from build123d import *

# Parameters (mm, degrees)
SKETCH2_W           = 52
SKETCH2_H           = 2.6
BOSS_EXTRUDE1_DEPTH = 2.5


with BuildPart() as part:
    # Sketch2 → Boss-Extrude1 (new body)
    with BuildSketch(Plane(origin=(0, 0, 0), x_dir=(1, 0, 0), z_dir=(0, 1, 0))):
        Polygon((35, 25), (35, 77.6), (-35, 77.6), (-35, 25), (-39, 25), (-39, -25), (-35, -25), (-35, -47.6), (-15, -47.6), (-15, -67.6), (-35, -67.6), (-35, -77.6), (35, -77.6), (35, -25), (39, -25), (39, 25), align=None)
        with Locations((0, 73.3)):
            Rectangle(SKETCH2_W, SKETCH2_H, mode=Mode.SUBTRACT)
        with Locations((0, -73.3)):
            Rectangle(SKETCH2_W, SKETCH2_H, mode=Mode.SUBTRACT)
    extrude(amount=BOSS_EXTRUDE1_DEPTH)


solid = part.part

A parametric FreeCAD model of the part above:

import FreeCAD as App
import Part
import Sketcher

V = App.Vector

doc = App.newDocument("Part")
body = doc.addObject("PartDesign::Body", "Body")

# Sketch on XZ plane
sketch1 = body.newObject("Sketcher::SketchObject", "Sketch")
sketch1.AttachmentSupport = (doc.getObject("XZ_Plane"), [""])
sketch1.MapMode = "FlatFace"
sketch1.addGeometry([
    Part.LineSegment(V(35, -25, 0), V(35, -77.6, 0)),  # 0
    Part.LineSegment(V(35, -77.6, 0), V(-35, -77.6, 0)),  # 1
    Part.LineSegment(V(-35, -77.6, 0), V(-35, -25, 0)),  # 2
    Part.LineSegment(V(-35, -25, 0), V(-39, -25, 0)),  # 3
    Part.LineSegment(V(-39, -25, 0), V(-39, 25, 0)),  # 4
    Part.LineSegment(V(-39, 25, 0), V(-35, 25, 0)),  # 5
    Part.LineSegment(V(-35, 25, 0), V(-35, 47.6, 0)),  # 6
    Part.LineSegment(V(-35, 47.6, 0), V(-15, 47.6, 0)),  # 7
    Part.LineSegment(V(-15, 47.6, 0), V(-15, 67.6, 0)),  # 8
    Part.LineSegment(V(-15, 67.6, 0), V(-35, 67.6, 0)),  # 9
    Part.LineSegment(V(-35, 67.6, 0), V(-35, 77.6, 0)),  # 10
    Part.LineSegment(V(-35, 77.6, 0), V(35, 77.6, 0)),  # 11
    Part.LineSegment(V(35, 77.6, 0), V(35, 25, 0)),  # 12
    Part.LineSegment(V(35, 25, 0), V(39, 25, 0)),  # 13
    Part.LineSegment(V(39, 25, 0), V(39, -25, 0)),  # 14
    Part.LineSegment(V(39, -25, 0), V(35, -25, 0)),  # 15
    Part.LineSegment(V(26, 74.6, 0), V(-26, 74.6, 0)),  # 16
    Part.LineSegment(V(-26, 74.6, 0), V(-26, 72, 0)),  # 17
    Part.LineSegment(V(-26, 72, 0), V(26, 72, 0)),  # 18
    Part.LineSegment(V(26, 72, 0), V(26, 74.6, 0)),  # 19
    Part.LineSegment(V(26, -72, 0), V(-26, -72, 0)),  # 20
    Part.LineSegment(V(-26, -72, 0), V(-26, -74.6, 0)),  # 21
    Part.LineSegment(V(-26, -74.6, 0), V(26, -74.6, 0)),  # 22
    Part.LineSegment(V(26, -74.6, 0), V(26, -72, 0)),  # 23
], False)
sketch1.addConstraint([
    Sketcher.Constraint("Coincident", 0, 2, 1, 1),
    Sketcher.Constraint("Coincident", 1, 2, 2, 1),
    Sketcher.Constraint("Coincident", 2, 2, 3, 1),
    Sketcher.Constraint("Coincident", 3, 2, 4, 1),
    Sketcher.Constraint("Coincident", 4, 2, 5, 1),
    Sketcher.Constraint("Coincident", 5, 2, 6, 1),
    Sketcher.Constraint("Coincident", 6, 2, 7, 1),
    Sketcher.Constraint("Coincident", 7, 2, 8, 1),
    Sketcher.Constraint("Coincident", 8, 2, 9, 1),
    Sketcher.Constraint("Coincident", 9, 2, 10, 1),
    Sketcher.Constraint("Coincident", 10, 2, 11, 1),
    Sketcher.Constraint("Coincident", 11, 2, 12, 1),
    Sketcher.Constraint("Coincident", 12, 2, 13, 1),
    Sketcher.Constraint("Coincident", 13, 2, 14, 1),
    Sketcher.Constraint("Coincident", 14, 2, 15, 1),
    Sketcher.Constraint("Coincident", 15, 2, 0, 1),
    Sketcher.Constraint("Coincident", 16, 2, 17, 1),
    Sketcher.Constraint("Coincident", 17, 2, 18, 1),
    Sketcher.Constraint("Coincident", 18, 2, 19, 1),
    Sketcher.Constraint("Coincident", 19, 2, 16, 1),
    Sketcher.Constraint("Coincident", 20, 2, 21, 1),
    Sketcher.Constraint("Coincident", 21, 2, 22, 1),
    Sketcher.Constraint("Coincident", 22, 2, 23, 1),
    Sketcher.Constraint("Coincident", 23, 2, 20, 1),
    Sketcher.Constraint("Vertical", 0),
    Sketcher.Constraint("Horizontal", 1),
    Sketcher.Constraint("Vertical", 2),
    Sketcher.Constraint("Horizontal", 3),
    Sketcher.Constraint("Vertical", 4),
    Sketcher.Constraint("Horizontal", 5),
    Sketcher.Constraint("Vertical", 6),
    Sketcher.Constraint("Horizontal", 7),
    Sketcher.Constraint("Vertical", 8),
    Sketcher.Constraint("Horizontal", 9),
    Sketcher.Constraint("Vertical", 10),
    Sketcher.Constraint("Horizontal", 11),
    Sketcher.Constraint("Vertical", 12),
    Sketcher.Constraint("Horizontal", 13),
    Sketcher.Constraint("Vertical", 14),
    Sketcher.Constraint("Horizontal", 15),
    Sketcher.Constraint("Horizontal", 16),
    Sketcher.Constraint("Vertical", 17),
    Sketcher.Constraint("Horizontal", 18),
    Sketcher.Constraint("Vertical", 19),
    Sketcher.Constraint("Horizontal", 20),
    Sketcher.Constraint("Vertical", 21),
    Sketcher.Constraint("Horizontal", 22),
    Sketcher.Constraint("Vertical", 23),
    Sketcher.Constraint("Symmetric", 0, 2, 10, 2, -1, 1),
    Sketcher.Constraint("Symmetric", 2, 2, 12, 2, -1, 1),
    Sketcher.Constraint("Symmetric", 4, 2, 14, 2, -1, 1),
    Sketcher.Constraint("Symmetric", 18, 2, 20, 2, -1, 1),
    Sketcher.Constraint("Symmetric", 16, 2, 22, 2, -1, 1),
    Sketcher.Constraint("Symmetric", 5, 2, 12, 2, -2),
    Sketcher.Constraint("Vertical", 6, 2, 9, 2),
    Sketcher.Constraint("Vertical", 17, 2, 20, 2),
    Sketcher.Constraint("Equal", 9, 8),
    Sketcher.Constraint("DistanceX", 1, 2, 1, 1, 70.0),
    Sketcher.Constraint("DistanceX", 3, 2, 3, 1, 4.0),
    Sketcher.Constraint("DistanceX", 7, 1, 7, 2, 20.0),
    Sketcher.Constraint("DistanceX", 16, 2, 16, 1, 52.0),
    Sketcher.Constraint("DistanceY", 4, 1, 4, 2, 50.0),
    Sketcher.Constraint("DistanceY", 10, 1, 10, 2, 10.0),
    Sketcher.Constraint("DistanceY", 0, 2, 0, 1, 52.6),
    Sketcher.Constraint("DistanceY", 17, 2, 17, 1, 2.6),
    Sketcher.Constraint("DistanceY", -1, 1, 17, 2, 72.0),
])
pad1 = body.newObject("PartDesign::Pad", "Pad")
pad1.Profile = sketch1
pad1.Length = 2.5
pad1.Reversed = True

doc.recompute()
